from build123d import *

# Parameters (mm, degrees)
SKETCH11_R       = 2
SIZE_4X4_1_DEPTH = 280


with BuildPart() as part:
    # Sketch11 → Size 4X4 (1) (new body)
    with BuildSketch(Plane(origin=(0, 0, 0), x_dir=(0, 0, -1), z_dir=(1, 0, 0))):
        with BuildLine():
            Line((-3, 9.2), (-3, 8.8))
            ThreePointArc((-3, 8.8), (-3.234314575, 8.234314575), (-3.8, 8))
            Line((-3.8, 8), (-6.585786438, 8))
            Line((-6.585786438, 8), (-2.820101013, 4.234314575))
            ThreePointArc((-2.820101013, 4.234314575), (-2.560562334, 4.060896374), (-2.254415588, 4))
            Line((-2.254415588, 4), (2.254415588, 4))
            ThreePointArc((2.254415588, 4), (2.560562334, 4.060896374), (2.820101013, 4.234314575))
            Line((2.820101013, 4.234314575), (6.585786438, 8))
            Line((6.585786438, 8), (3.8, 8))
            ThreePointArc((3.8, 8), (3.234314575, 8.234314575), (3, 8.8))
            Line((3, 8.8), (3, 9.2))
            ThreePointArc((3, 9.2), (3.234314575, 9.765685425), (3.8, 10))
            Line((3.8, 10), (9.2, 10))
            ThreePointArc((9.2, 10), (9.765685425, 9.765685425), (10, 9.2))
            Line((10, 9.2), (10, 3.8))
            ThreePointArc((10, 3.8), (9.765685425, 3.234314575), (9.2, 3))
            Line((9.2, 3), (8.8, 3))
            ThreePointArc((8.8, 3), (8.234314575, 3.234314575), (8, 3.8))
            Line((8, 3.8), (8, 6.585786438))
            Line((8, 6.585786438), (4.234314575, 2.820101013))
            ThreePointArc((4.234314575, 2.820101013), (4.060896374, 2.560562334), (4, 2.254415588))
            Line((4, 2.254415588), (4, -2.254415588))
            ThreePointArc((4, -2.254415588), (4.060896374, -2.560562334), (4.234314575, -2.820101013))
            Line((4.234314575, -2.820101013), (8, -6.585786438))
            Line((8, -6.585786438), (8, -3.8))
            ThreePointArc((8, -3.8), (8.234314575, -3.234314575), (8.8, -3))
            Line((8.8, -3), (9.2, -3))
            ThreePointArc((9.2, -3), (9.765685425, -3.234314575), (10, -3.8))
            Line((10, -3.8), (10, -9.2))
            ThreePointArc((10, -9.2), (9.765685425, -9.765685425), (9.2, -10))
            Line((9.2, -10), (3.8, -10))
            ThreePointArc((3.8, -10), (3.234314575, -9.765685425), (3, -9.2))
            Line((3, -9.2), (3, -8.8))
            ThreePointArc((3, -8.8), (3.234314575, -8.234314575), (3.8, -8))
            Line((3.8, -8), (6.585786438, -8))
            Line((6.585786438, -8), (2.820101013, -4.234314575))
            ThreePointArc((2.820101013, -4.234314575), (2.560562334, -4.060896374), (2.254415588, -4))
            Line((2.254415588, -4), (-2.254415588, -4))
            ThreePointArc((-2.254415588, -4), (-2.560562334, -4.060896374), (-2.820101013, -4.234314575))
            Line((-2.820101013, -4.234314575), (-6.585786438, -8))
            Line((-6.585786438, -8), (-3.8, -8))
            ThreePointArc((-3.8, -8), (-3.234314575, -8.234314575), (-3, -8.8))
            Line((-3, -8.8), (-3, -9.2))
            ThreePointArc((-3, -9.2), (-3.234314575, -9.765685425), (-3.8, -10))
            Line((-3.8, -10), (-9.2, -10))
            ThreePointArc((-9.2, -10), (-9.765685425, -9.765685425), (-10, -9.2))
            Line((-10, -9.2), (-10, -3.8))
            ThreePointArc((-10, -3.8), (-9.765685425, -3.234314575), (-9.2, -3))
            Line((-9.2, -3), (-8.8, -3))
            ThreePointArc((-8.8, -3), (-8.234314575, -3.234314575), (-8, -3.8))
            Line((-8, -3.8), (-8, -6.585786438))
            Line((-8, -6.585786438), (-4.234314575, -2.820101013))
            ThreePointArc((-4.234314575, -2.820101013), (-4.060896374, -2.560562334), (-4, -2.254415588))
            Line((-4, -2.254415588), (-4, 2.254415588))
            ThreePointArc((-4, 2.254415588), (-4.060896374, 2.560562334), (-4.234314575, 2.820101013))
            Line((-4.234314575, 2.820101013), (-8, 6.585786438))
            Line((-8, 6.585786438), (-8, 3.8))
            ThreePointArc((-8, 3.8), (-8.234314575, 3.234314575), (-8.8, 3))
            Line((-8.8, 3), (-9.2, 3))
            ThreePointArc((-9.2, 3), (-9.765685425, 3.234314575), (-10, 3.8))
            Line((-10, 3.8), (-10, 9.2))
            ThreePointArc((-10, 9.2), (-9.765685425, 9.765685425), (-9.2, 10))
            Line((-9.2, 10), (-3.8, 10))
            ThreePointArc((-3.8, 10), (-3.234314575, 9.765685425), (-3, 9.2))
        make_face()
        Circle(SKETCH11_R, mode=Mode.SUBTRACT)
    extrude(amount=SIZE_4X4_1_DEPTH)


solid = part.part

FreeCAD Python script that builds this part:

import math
import FreeCAD as App
import Part
import Sketcher

V = App.Vector

doc = App.newDocument("Part")
body = doc.addObject("PartDesign::Body", "Body")

# Sketch on YZ plane
sketch1 = body.newObject("Sketcher::SketchObject", "Sketch")
sketch1.AttachmentSupport = (doc.getObject("YZ_Plane"), [""])
sketch1.MapMode = "FlatFace"
sketch1.addGeometry([
    Part.LineSegment(V(8.8, 3, 0), V(9.2, 3, 0)),  # 0
    Part.ArcOfCircle(Part.Circle(V(9.2, 3.8, 0), V(0, 0, 1), 0.8), math.radians(-90), math.radians(0)),  # 1
    Part.LineSegment(V(10, 3.8, 0), V(10, 9.2, 0)),  # 2
    Part.ArcOfCircle(Part.Circle(V(9.2, 9.2, 0), V(0, 0, 1), 0.8), math.radians(0), math.radians(90)),  # 3
    Part.LineSegment(V(9.2, 10, 0), V(3.8, 10, 0)),  # 4
    Part.ArcOfCircle(Part.Circle(V(3.8, 9.2, 0), V(0, 0, 1), 0.8), math.radians(90), math.radians(180)),  # 5
    Part.LineSegment(V(3, 9.2, 0), V(3, 8.8, 0)),  # 6
    Part.ArcOfCircle(Part.Circle(V(3.8, 8.8, 0), V(0, 0, 1), 0.8), math.radians(180), math.radians(270)),  # 7
    Part.LineSegment(V(3.8, 8, 0), V(6.585786, 8, 0)),  # 8
    Part.LineSegment(V(6.585786, 8, 0), V(2.820101, 4.234315, 0)),  # 9
    Part.ArcOfCircle(Part.Circle(V(2.254416, 4.8, 0), V(0, 0, 1), 0.8), math.radians(-90), math.radians(-45)),  # 10
    Part.LineSegment(V(2.254416, 4, 0), V(-2.254416, 4, 0)),  # 11
    Part.ArcOfCircle(Part.Circle(V(-2.254416, 4.8, 0), V(0, 0, 1), 0.8), math.radians(-135), math.radians(-90)),  # 12
    Part.LineSegment(V(-2.820101, 4.234315, 0), V(-6.585786, 8, 0)),  # 13
    Part.LineSegment(V(-6.585786, 8, 0), V(-3.8, 8, 0)),  # 14
    Part.ArcOfCircle(Part.Circle(V(-3.8, 8.8, 0), V(0, 0, 1), 0.8), math.radians(-90), math.radians(0)),  # 15
    Part.LineSegment(V(-3, 8.8, 0), V(-3, 9.2, 0)),  # 16
    Part.ArcOfCircle(Part.Circle(V(-3.8, 9.2, 0), V(0, 0, 1), 0.8), math.radians(0), math.radians(90)),  # 17
    Part.LineSegment(V(-3.8, 10, 0), V(-9.2, 10, 0)),  # 18
    Part.ArcOfCircle(Part.Circle(V(-9.2, 9.2, 0), V(0, 0, 1), 0.8), math.radians(90), math.radians(180)),  # 19
    Part.LineSegment(V(-10, 9.2, 0), V(-10, 3.8, 0)),  # 20
    Part.ArcOfCircle(Part.Circle(V(-9.2, 3.8, 0), V(0, 0, 1), 0.8), math.radians(180), math.radians(270)),  # 21
    Part.LineSegment(V(-9.2, 3, 0), V(-8.8, 3, 0)),  # 22
    Part.ArcOfCircle(Part.Circle(V(-8.8, 3.8, 0), V(0, 0, 1), 0.8), math.radians(-90), math.radians(0)),  # 23
    Part.LineSegment(V(-8, 3.8, 0), V(-8, 6.585786, 0)),  # 24
    Part.LineSegment(V(-8, 6.585786, 0), V(-4.234315, 2.820101, 0)),  # 25
    Part.ArcOfCircle(Part.Circle(V(-4.8, 2.254416, 0), V(0, 0, 1), 0.8), math.radians(0), math.radians(45)),  # 26
    Part.LineSegment(V(-4, 2.254416, 0), V(-4, -2.254416, 0)),  # 27
    Part.ArcOfCircle(Part.Circle(V(-4.8, -2.254416, 0), V(0, 0, 1), 0.8), math.radians(-45), math.radians(0)),  # 28
    Part.LineSegment(V(-4.234315, -2.820101, 0), V(-8, -6.585786, 0)),  # 29
    Part.LineSegment(V(-8, -6.585786, 0), V(-8, -3.8, 0)),  # 30
    Part.ArcOfCircle(Part.Circle(V(-8.8, -3.8, 0), V(0, 0, 1), 0.8), math.radians(0), math.radians(90)),  # 31
    Part.LineSegment(V(-8.8, -3, 0), V(-9.2, -3, 0)),  # 32
    Part.ArcOfCircle(Part.Circle(V(-9.2, -3.8, 0), V(0, 0, 1), 0.8), math.radians(90), math.radians(180)),  # 33
    Part.LineSegment(V(-10, -3.8, 0), V(-10, -9.2, 0)),  # 34
    Part.ArcOfCircle(Part.Circle(V(-9.2, -9.2, 0), V(0, 0, 1), 0.8), math.radians(180), math.radians(270)),  # 35
    Part.LineSegment(V(-9.2, -10, 0), V(-3.8, -10, 0)),  # 36
    Part.ArcOfCircle(Part.Circle(V(-3.8, -9.2, 0), V(0, 0, 1), 0.8), math.radians(-90), math.radians(0)),  # 37
    Part.LineSegment(V(-3, -9.2, 0), V(-3, -8.8, 0)),  # 38
    Part.ArcOfCircle(Part.Circle(V(-3.8, -8.8, 0), V(0, 0, 1), 0.8), math.radians(0), math.radians(90)),  # 39
    Part.LineSegment(V(-3.8, -8, 0), V(-6.585786, -8, 0)),  # 40
    Part.LineSegment(V(-6.585786, -8, 0), V(-2.820101, -4.234315, 0)),  # 41
    Part.ArcOfCircle(Part.Circle(V(-2.254416, -4.8, 0), V(0, 0, 1), 0.8), math.radians(90), math.radians(135)),  # 42
    Part.LineSegment(V(-2.254416, -4, 0), V(2.254416, -4, 0)),  # 43
    Part.ArcOfCircle(Part.Circle(V(2.254416, -4.8, 0), V(0, 0, 1), 0.8), math.radians(45), math.radians(90)),  # 44
    Part.LineSegment(V(2.820101, -4.234315, 0), V(6.585786, -8, 0)),  # 45
    Part.LineSegment(V(6.585786, -8, 0), V(3.8, -8, 0)),  # 46
    Part.ArcOfCircle(Part.Circle(V(3.8, -8.8, 0), V(0, 0, 1), 0.8), math.radians(90), math.radians(180)),  # 47
    Part.LineSegment(V(3, -8.8, 0), V(3, -9.2, 0)),  # 48
    Part.ArcOfCircle(Part.Circle(V(3.8, -9.2, 0), V(0, 0, 1), 0.8), math.radians(180), math.radians(270)),  # 49
    Part.LineSegment(V(3.8, -10, 0), V(9.2, -10, 0)),  # 50
    Part.ArcOfCircle(Part.Circle(V(9.2, -9.2, 0), V(0, 0, 1), 0.8), math.radians(-90), math.radians(0)),  # 51
    Part.LineSegment(V(10, -9.2, 0), V(10, -3.8, 0)),  # 52
    Part.ArcOfCircle(Part.Circle(V(9.2, -3.8, 0), V(0, 0, 1), 0.8), math.radians(0), math.radians(90)),  # 53
    Part.LineSegment(V(9.2, -3, 0), V(8.8, -3, 0)),  # 54
    Part.ArcOfCircle(Part.Circle(V(8.8, -3.8, 0), V(0, 0, 1), 0.8), math.radians(90), math.radians(180)),  # 55
    Part.LineSegment(V(8, -3.8, 0), V(8, -6.585786, 0)),  # 56
    Part.LineSegment(V(8, -6.585786, 0), V(4.234315, -2.820101, 0)),  # 57
    Part.ArcOfCircle(Part.Circle(V(4.8, -2.254416, 0), V(0, 0, 1), 0.8), math.radians(180), math.radians(225)),  # 58
    Part.LineSegment(V(4, -2.254416, 0), V(4, 2.254416, 0)),  # 59
    Part.ArcOfCircle(Part.Circle(V(4.8, 2.254416, 0), V(0, 0, 1), 0.8), math.radians(135), math.radians(180)),  # 60
    Part.LineSegment(V(4.234315, 2.820101, 0), V(8, 6.585786, 0)),  # 61
    Part.LineSegment(V(8, 6.585786, 0), V(8, 3.8, 0)),  # 62
    Part.ArcOfCircle(Part.Circle(V(8.8, 3.8, 0), V(0, 0, 1), 0.8), math.radians(180), math.radians(270)),  # 63
    Part.Circle(V(0, 0, 0), V(0, 0, 1), 2),  # 64
], False)
sketch1.addConstraint([
    Sketcher.Constraint("Tangent", 0, 2, 1, 1),
    Sketcher.Constraint("Tangent", 1, 2, 2, 1),
    Sketcher.Constraint("Tangent", 2, 2, 3, 1),
    Sketcher.Constraint("Tangent", 3, 2, 4, 1),
    Sketcher.Constraint("Tangent", 4, 2, 5, 1),
    Sketcher.Constraint("Tangent", 5, 2, 6, 1),
    Sketcher.Constraint("Tangent", 6, 2, 7, 1),
    Sketcher.Constraint("Tangent", 7, 2, 8, 1),
    Sketcher.Constraint("Coincident", 8, 2, 9, 1),
    Sketcher.Constraint("Tangent", 9, 2, 10, 2),
    Sketcher.Constraint("Tangent", 10, 1, 11, 1),
    Sketcher.Constraint("Tangent", 11, 2, 12, 2),
    Sketcher.Constraint("Tangent", 12, 1, 13, 1),
    Sketcher.Constraint("Coincident", 13, 2, 14, 1),
    Sketcher.Constraint("Tangent", 14, 2, 15, 1),
    Sketcher.Constraint("Tangent", 15, 2, 16, 1),
    Sketcher.Constraint("Tangent", 16, 2, 17, 1),
    Sketcher.Constraint("Tangent", 17, 2, 18, 1),
    Sketcher.Constraint("Tangent", 18, 2, 19, 1),
    Sketcher.Constraint("Tangent", 19, 2, 20, 1),
    Sketcher.Constraint("Tangent", 20, 2, 21, 1),
    Sketcher.Constraint("Tangent", 21, 2, 22, 1),
    Sketcher.Constraint("Tangent", 22, 2, 23, 1),
    Sketcher.Constraint("Tangent", 23, 2, 24, 1),
    Sketcher.Constraint("Coincident", 24, 2, 25, 1),
    Sketcher.Constraint("Tangent", 25, 2, 26, 2),
    Sketcher.Constraint("Tangent", 26, 1, 27, 1),
    Sketcher.Constraint("Tangent", 27, 2, 28, 2),
    Sketcher.Constraint("Tangent", 28, 1, 29, 1),
    Sketcher.Constraint("Coincident", 29, 2, 30, 1),
    Sketcher.Constraint("Tangent", 30, 2, 31, 1),
    Sketcher.Constraint("Tangent", 31, 2, 32, 1),
    Sketcher.Constraint("Tangent", 32, 2, 33, 1),
    Sketcher.Constraint("Tangent", 33, 2, 34, 1),
    Sketcher.Constraint("Tangent", 34, 2, 35, 1),
    Sketcher.Constraint("Tangent", 35, 2, 36, 1),
    Sketcher.Constraint("Tangent", 36, 2, 37, 1),
    Sketcher.Constraint("Tangent", 37, 2, 38, 1),
    Sketcher.Constraint("Tangent", 38, 2, 39, 1),
    Sketcher.Constraint("Tangent", 39, 2, 40, 1),
    Sketcher.Constraint("Coincident", 40, 2, 41, 1),
    Sketcher.Constraint("Tangent", 41, 2, 42, 2),
    Sketcher.Constraint("Tangent", 42, 1, 43, 1),
    Sketcher.Constraint("Tangent", 43, 2, 44, 2),
    Sketcher.Constraint("Tangent", 44, 1, 45, 1),
    Sketcher.Constraint("Coincident", 45, 2, 46, 1),
    Sketcher.Constraint("Tangent", 46, 2, 47, 1),
    Sketcher.Constraint("Tangent", 47, 2, 48, 1),
    Sketcher.Constraint("Tangent", 48, 2, 49, 1),
    Sketcher.Constraint("Tangent", 49, 2, 50, 1),
    Sketcher.Constraint("Tangent", 50, 2, 51, 1),
    Sketcher.Constraint("Tangent", 51, 2, 52, 1),
    Sketcher.Constraint("Tangent", 52, 2, 53, 1),
    Sketcher.Constraint("Tangent", 53, 2, 54, 1),
    Sketcher.Constraint("Tangent", 54, 2, 55, 1),
    Sketcher.Constraint("Tangent", 55, 2, 56, 1),
    Sketcher.Constraint("Coincident", 56, 2, 57, 1),
    Sketcher.Constraint("Tangent", 57, 2, 58, 2),
    Sketcher.Constraint("Tangent", 58, 1, 59, 1),
    Sketcher.Constraint("Tangent", 59, 2, 60, 2),
    Sketcher.Constraint("Tangent", 60, 1, 61, 1),
    Sketcher.Constraint("Coincident", 61, 2, 62, 1),
    Sketcher.Constraint("Tangent", 62, 2, 63, 1),
    Sketcher.Constraint("Tangent", 63, 2, 0, 1),
    Sketcher.Constraint("Horizontal", 0),
    Sketcher.Constraint("Vertical", 2),
    Sketcher.Constraint("Horizontal", 4),
    Sketcher.Constraint("Vertical", 6),
    Sketcher.Constraint("Horizontal", 8),
    Sketcher.Constraint("Horizontal", 11),
    Sketcher.Constraint("Horizontal", 14),
    Sketcher.Constraint("Vertical", 16),
    Sketcher.Constraint("Horizontal", 18),
    Sketcher.Constraint("Vertical", 20),
    Sketcher.Constraint("Horizontal", 22),
    Sketcher.Constraint("Vertical", 24),
    Sketcher.Constraint("Vertical", 27),
    Sketcher.Constraint("Vertical", 30),
    Sketcher.Constraint("Horizontal", 32),
    Sketcher.Constraint("Vertical", 34),
    Sketcher.Constraint("Horizontal", 36),
    Sketcher.Constraint("Vertical", 38),
    Sketcher.Constraint("Horizontal", 40),
    Sketcher.Constraint("Horizontal", 43),
    Sketcher.Constraint("Horizontal", 46),
    Sketcher.Constraint("Vertical", 48),
    Sketcher.Constraint("Horizontal", 50),
    Sketcher.Constraint("Vertical", 52),
    Sketcher.Constraint("Horizontal", 54),
    Sketcher.Constraint("Vertical", 56),
    Sketcher.Constraint("Vertical", 59),
    Sketcher.Constraint("Vertical", 62),
    Sketcher.Constraint("Coincident", 64, 3, -1, 1),
    Sketcher.Constraint("Equal", 1, 3),
    Sketcher.Constraint("Equal", 3, 5),
    Sketcher.Constraint("Equal", 5, 7),
    Sketcher.Constraint("Equal", 7, 10),
    Sketcher.Constraint("Equal", 10, 12),
    Sketcher.Constraint("Equal", 12, 15),
    Sketcher.Constraint("Equal", 15, 17),
    Sketcher.Constraint("Equal", 17, 19),
    Sketcher.Constraint("Equal", 19, 21),
    Sketcher.Constraint("Equal", 21, 23),
    Sketcher.Constraint("Equal", 23, 26),
    Sketcher.Constraint("Equal", 26, 28),
    Sketcher.Constraint("Equal", 28, 31),
    Sketcher.Constraint("Equal", 31, 33),
    Sketcher.Constraint("Equal", 33, 35),
    Sketcher.Constraint("Equal", 35, 37),
    Sketcher.Constraint("Equal", 37, 39),
    Sketcher.Constraint("Equal", 39, 42),
    Sketcher.Constraint("Equal", 42, 44),
    Sketcher.Constraint("Equal", 44, 47),
    Sketcher.Constraint("Equal", 47, 49),
    Sketcher.Constraint("Equal", 49, 51),
    Sketcher.Constraint("Equal", 51, 53),
    Sketcher.Constraint("Equal", 53, 55),
    Sketcher.Constraint("Equal", 55, 58),
    Sketcher.Constraint("Equal", 58, 60),
    Sketcher.Constraint("Equal", 60, 63),
    Sketcher.Constraint("Symmetric", 1, 3, 33, 3, -1, 1),
    Sketcher.Constraint("Symmetric", 5, 3, 37, 3, -1, 1),
    Sketcher.Constraint("Symmetric", 10, 3, 42, 3, -1, 1),
    Sketcher.Constraint("Symmetric", 15, 3, 47, 3, -1, 1),
    Sketcher.Constraint("Symmetric", 19, 3, 51, 3, -1, 1),
    Sketcher.Constraint("Symmetric", 23, 3, 55, 3, -1, 1),
    Sketcher.Constraint("Symmetric", 26, 3, 58, 3, -1, 1),
    Sketcher.Constraint("Symmetric", 8, 2, 40, 2, -1, 1),
    Sketcher.Constraint("Symmetric", 12, 1, 44, 1, -1, 1),
    Sketcher.Constraint("Symmetric", 28, 1, 60, 1, -1, 1),
    Sketcher.Constraint("Symmetric", 7, 3, 15, 3, -2),
    Sketcher.Constraint("Symmetric", 3, 3, 19, 3, -2),
    Sketcher.Constraint("Symmetric", 31, 3, 55, 3, -2),
    Sketcher.Constraint("Symmetric", 9, 2, 12, 1, -2),
    Sketcher.Constraint("Symmetric", 28, 1, 57, 2, -2),
    Sketcher.Constraint("Symmetric", 24, 2, 61, 2, -2),
    Sketcher.Constraint("Perpendicular", 9, 13),
    Sketcher.Constraint("Parallel", 13, 25),
    Sketcher.Constraint("Equal", 50, 2),
    Sketcher.Constraint("Equal", 54, 6),
    Sketcher.Constraint("Equal", 46, 24),
    Sketcher.Constraint("Equal", 43, 27),
    Sketcher.Constraint("Equal", 13, 25),
    Sketcher.Constraint("Diameter", 64, 4.0),
    Sketcher.Constraint("Radius", 1, 0.8),
    Sketcher.Constraint("DistanceX", 0, 1, 0, 2, 0.4),
    Sketcher.Constraint("DistanceX", 4, 2, 4, 1, 5.4),
    Sketcher.Constraint("DistanceY", -1, 1, 0, 2, 3.0),
    Sketcher.Constraint("DistanceY", -1, 1, 10, 1, 4.0),
    Sketcher.Constraint("DistanceX", 11, 2, 11, 1, 4.508831),
])
pad1 = body.newObject("PartDesign::Pad", "Pad")
pad1.Profile = sketch1
pad1.Length = 280

doc.recompute()
